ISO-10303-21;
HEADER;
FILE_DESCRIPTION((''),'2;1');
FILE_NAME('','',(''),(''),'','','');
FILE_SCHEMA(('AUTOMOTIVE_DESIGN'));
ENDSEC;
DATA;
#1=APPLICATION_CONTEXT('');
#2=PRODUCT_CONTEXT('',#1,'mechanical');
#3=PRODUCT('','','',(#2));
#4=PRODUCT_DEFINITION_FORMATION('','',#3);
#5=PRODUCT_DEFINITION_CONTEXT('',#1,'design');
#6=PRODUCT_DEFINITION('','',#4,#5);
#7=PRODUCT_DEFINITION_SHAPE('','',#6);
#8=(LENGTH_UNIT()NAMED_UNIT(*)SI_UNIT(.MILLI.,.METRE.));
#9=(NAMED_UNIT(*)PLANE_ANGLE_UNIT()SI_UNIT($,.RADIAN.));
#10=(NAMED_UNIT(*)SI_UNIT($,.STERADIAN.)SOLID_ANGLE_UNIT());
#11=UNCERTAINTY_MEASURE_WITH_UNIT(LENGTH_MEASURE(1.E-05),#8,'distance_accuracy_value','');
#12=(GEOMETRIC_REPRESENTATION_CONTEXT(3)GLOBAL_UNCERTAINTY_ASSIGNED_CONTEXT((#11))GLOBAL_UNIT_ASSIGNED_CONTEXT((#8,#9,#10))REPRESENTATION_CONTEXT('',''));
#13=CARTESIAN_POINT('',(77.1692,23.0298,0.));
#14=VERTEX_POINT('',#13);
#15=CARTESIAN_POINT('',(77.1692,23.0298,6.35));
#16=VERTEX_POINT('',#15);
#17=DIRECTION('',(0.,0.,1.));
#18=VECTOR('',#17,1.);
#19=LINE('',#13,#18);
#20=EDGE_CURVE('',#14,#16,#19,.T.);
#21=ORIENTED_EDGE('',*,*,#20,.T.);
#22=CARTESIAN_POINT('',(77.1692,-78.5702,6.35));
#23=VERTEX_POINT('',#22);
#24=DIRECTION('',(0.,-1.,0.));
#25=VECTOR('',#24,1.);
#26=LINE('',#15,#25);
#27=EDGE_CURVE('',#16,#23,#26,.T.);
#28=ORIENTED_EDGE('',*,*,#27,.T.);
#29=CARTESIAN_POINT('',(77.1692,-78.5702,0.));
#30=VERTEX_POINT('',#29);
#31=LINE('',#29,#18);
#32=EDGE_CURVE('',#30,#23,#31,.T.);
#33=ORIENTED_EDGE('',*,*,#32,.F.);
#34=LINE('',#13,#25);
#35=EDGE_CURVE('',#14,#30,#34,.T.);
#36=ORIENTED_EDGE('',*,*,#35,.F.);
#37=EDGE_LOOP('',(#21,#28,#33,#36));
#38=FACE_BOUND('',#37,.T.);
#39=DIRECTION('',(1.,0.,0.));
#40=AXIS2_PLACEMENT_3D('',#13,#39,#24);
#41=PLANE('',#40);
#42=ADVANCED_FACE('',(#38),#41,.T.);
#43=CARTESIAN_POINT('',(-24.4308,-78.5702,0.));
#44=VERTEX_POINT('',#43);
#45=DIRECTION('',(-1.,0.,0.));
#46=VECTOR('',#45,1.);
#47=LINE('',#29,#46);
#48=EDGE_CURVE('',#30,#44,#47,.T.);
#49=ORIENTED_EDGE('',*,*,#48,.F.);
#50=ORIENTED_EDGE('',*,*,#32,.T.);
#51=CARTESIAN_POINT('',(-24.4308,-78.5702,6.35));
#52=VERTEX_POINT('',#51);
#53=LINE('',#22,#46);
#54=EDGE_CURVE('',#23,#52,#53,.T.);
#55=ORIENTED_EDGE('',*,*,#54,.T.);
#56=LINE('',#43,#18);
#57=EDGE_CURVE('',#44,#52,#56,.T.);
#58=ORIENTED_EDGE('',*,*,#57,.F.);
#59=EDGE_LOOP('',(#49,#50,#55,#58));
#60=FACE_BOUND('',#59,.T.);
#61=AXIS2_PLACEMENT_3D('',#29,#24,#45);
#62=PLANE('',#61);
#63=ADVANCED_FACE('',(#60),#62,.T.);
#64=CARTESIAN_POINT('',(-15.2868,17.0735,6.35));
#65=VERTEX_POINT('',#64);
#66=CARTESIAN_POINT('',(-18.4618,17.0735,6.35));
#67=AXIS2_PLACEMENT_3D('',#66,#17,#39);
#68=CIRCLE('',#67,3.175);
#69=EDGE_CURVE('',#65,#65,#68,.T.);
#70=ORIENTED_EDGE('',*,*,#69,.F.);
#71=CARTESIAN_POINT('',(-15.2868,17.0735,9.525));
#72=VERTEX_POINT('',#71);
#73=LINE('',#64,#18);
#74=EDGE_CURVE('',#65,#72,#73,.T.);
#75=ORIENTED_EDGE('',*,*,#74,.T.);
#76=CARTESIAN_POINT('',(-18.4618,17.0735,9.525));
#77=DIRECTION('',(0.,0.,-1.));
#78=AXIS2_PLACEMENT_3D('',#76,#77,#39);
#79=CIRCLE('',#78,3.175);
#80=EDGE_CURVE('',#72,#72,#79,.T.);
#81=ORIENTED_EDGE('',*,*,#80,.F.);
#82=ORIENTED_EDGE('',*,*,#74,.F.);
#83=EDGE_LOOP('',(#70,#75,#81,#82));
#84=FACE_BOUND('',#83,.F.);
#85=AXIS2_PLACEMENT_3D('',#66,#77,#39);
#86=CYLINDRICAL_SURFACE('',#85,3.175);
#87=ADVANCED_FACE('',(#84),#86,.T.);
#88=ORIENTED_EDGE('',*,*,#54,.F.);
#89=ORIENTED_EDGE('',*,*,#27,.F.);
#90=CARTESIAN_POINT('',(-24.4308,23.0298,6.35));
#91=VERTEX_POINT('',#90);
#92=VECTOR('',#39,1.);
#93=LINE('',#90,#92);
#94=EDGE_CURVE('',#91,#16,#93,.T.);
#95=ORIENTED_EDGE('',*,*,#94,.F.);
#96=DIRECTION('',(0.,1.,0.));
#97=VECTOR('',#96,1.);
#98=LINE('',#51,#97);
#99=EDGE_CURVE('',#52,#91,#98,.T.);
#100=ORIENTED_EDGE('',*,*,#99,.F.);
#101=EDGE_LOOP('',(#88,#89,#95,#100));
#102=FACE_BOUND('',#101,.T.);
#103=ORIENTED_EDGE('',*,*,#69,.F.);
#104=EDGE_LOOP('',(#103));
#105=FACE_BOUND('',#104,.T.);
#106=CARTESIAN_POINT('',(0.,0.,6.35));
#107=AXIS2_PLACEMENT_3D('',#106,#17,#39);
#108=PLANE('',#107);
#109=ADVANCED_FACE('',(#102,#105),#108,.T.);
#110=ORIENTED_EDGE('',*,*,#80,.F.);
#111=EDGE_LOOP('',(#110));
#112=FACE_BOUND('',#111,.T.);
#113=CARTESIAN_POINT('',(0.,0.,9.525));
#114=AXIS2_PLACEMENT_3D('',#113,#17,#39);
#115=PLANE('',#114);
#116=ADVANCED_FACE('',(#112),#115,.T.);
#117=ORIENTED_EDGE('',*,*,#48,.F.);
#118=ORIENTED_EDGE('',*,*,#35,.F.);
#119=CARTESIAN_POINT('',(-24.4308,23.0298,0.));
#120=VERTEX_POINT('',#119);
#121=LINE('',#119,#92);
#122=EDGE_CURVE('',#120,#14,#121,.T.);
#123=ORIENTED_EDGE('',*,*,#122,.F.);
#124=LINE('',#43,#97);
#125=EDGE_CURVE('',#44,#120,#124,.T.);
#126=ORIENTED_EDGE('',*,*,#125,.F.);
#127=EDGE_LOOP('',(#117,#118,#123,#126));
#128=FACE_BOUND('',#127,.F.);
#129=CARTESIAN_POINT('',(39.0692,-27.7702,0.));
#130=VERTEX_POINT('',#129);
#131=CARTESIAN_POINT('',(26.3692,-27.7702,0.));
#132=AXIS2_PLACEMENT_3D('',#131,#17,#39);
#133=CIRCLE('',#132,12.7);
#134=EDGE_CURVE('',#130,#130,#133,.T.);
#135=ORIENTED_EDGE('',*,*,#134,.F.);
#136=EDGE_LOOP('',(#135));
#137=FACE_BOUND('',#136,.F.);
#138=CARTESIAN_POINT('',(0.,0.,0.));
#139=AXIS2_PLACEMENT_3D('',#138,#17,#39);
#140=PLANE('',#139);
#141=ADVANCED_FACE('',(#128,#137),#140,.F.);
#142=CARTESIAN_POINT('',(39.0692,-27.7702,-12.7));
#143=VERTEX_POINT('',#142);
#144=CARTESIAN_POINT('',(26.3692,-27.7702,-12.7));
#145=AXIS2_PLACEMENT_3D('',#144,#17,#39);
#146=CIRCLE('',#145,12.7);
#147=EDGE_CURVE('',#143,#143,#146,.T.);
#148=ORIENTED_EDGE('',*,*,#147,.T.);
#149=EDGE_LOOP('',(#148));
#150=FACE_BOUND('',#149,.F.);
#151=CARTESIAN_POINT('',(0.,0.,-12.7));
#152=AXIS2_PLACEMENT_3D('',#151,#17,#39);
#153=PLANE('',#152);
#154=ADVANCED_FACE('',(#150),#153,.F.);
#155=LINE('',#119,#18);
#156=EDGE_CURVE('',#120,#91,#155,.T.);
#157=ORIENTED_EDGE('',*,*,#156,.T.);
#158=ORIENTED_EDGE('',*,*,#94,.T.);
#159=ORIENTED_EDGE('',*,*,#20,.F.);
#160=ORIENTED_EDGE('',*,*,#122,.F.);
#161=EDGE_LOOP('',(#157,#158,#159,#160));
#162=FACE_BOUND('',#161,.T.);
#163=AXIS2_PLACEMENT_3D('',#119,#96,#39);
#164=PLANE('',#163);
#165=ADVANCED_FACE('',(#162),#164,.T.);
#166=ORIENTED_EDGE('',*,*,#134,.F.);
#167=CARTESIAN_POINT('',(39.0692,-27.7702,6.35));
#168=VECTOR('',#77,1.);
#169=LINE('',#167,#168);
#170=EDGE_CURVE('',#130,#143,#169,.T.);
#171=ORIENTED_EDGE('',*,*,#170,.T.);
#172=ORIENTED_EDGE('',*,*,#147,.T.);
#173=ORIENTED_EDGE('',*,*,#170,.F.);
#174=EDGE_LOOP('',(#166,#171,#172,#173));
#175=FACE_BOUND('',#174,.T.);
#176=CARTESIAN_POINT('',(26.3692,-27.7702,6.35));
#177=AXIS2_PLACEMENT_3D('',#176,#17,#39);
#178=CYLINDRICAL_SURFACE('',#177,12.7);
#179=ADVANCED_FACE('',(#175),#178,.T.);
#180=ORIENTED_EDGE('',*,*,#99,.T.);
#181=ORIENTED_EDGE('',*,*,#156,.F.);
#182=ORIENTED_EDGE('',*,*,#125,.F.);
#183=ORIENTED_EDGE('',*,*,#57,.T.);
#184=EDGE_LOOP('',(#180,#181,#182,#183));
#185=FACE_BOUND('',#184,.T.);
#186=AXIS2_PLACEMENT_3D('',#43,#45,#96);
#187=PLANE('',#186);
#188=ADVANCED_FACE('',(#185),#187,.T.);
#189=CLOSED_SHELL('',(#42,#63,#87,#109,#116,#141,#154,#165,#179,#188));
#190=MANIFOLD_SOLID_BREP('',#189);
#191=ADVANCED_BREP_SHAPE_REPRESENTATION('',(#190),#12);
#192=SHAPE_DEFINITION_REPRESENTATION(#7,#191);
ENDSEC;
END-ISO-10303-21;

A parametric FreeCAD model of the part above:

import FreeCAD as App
import Part
import Sketcher
Q = App.Units.Quantity

doc = App.newDocument("Part")
body = doc.addObject("PartDesign::Body", "Body")

# Sketch on XY plane
sketch1 = doc.addObject("Sketcher::SketchObject", "Sketch")
body.addObject(sketch1)
sketch1.AttachmentSupport = (doc.XY_Plane, [""])
sketch1.MapMode = "FlatFace"
sketch1.addGeometry(Part.LineSegment(App.Vector(77, 23, 0), App.Vector(-24, 23, 0)), False)
sketch1.addGeometry(Part.LineSegment(App.Vector(-24, 23, 0), App.Vector(-24, -79, 0)), False)
sketch1.addGeometry(Part.LineSegment(App.Vector(-24, -79, 0), App.Vector(77, -79, 0)), False)
sketch1.addGeometry(Part.LineSegment(App.Vector(77, -79, 0), App.Vector(77, 23, 0)), False)
sketch1.addConstraint(Sketcher.Constraint("Coincident", 0, 2, 1, 1))
sketch1.addConstraint(Sketcher.Constraint("Coincident", 1, 2, 2, 1))
sketch1.addConstraint(Sketcher.Constraint("Coincident", 2, 2, 3, 1))
sketch1.addConstraint(Sketcher.Constraint("Coincident", 3, 2, 0, 1))
sketch1.addConstraint(Sketcher.Constraint("Horizontal", 0))
sketch1.addConstraint(Sketcher.Constraint("Vertical", 1))
sketch1.addConstraint(Sketcher.Constraint("Horizontal", 2))
sketch1.addConstraint(Sketcher.Constraint("Vertical", 3))
sketch1.addConstraint(Sketcher.Constraint("Equal", 2, 1))
sketch1.addConstraint(Sketcher.Constraint("DistanceX", 0, 2, 0, 1, Q("4 in")))
sketch1.addConstraint(Sketcher.Constraint("DistanceX", 0, 2, -1, 1, Q("24.4308 mm")))
sketch1.addConstraint(Sketcher.Constraint("DistanceY", -1, 1, 0, 2, Q("23.0298 mm")))
pad1 = doc.addObject("PartDesign::Pad", "Pad")
body.addObject(pad1)
pad1.Profile = sketch1
pad1.Length = Q("0.25 in")

# Sketch on XY plane
sketch2 = doc.addObject("Sketcher::SketchObject", "Sketch001")
body.addObject(sketch2)
sketch2.AttachmentSupport = (doc.XY_Plane, [""])
sketch2.MapMode = "FlatFace"
sketch2.AttachmentOffset = App.Placement(App.Vector(0, 0, 0.25 * 25.4), App.Rotation())
sketch2.addGeometry(Part.Circle(App.Vector(26, -28, 0), App.Vector(0, 0, 1), 13), False)
sketch2.addConstraint(Sketcher.Constraint("Diameter", 0, Q("1 in")))
sketch2.addConstraint(Sketcher.Constraint("DistanceX", -1, 1, 0, 3, Q("26.3692 mm")))
sketch2.addConstraint(Sketcher.Constraint("DistanceY", 0, 3, -1, 1, Q("27.7702 mm")))
pocket1 = doc.addObject("PartDesign::Pocket", "Pocket")
body.addObject(pocket1)
pocket1.Profile = sketch2
pocket1.Length = Q("0.25 in")

# Sketch on XY plane
sketch3 = doc.addObject("Sketcher::SketchObject", "Sketch002")
body.addObject(sketch3)
sketch3.AttachmentSupport = (doc.XY_Plane, [""])
sketch3.MapMode = "FlatFace"
sketch3.AttachmentOffset = App.Placement(App.Vector(0, 0, 0.25 * 25.4), App.Rotation())
sketch3.addGeometry(Part.Circle(App.Vector(-13.4, 12, 0), App.Vector(0, 0, 1), 3.2), False)
sketch3.addConstraint(Sketcher.Constraint("Diameter", 0, Q("0.25 in")))
sketch3.addConstraint(Sketcher.Constraint("DistanceX", 0, 3, -1, 1, Q("13.3818 mm")))
sketch3.addConstraint(Sketcher.Constraint("DistanceY", -1, 1, 0, 3, Q("11.9935 mm")))
pad2 = doc.addObject("PartDesign::Pad", "Pad001")
body.addObject(pad2)
pad2.Profile = sketch3
pad2.Length = Q("0.25 in")

# Sketch on XY plane
sketch4 = doc.addObject("Sketcher::SketchObject", "Sketch003")
body.addObject(sketch4)
sketch4.AttachmentSupport = (doc.XY_Plane, [""])
sketch4.MapMode = "FlatFace"
sketch4.AttachmentOffset = App.Placement(App.Vector(0, 0, 0.25 * 25.4), App.Rotation())
sketch4.addGeometry(Part.Circle(App.Vector(26, -28, 0), App.Vector(0, 0, 1), 13), False)
sketch4.addConstraint(Sketcher.Constraint("Diameter", 0, Q("1 in")))
sketch4.addConstraint(Sketcher.Constraint("DistanceX", -1, 1, 0, 3, Q("26.3692 mm")))
sketch4.addConstraint(Sketcher.Constraint("DistanceY", 0, 3, -1, 1, Q("27.7702 mm")))
pad3 = doc.addObject("PartDesign::Pad", "Pad002")
body.addObject(pad3)
pad3.Profile = sketch4
pad3.Length = Q("0.75 in")
pad3.Reversed = True

# Sketch on XY plane
sketch5 = doc.addObject("Sketcher::SketchObject", "Sketch004")
body.addObject(sketch5)
sketch5.AttachmentSupport = (doc.XY_Plane, [""])
sketch5.MapMode = "FlatFace"
sketch5.AttachmentOffset = App.Placement(App.Vector(0, 0, 0.25 * 25.4), App.Rotation())
sketch5.addGeometry(Part.Circle(App.Vector(-18.5, 17.1, 0), App.Vector(0, 0, 1), 3.2), False)
sketch5.addConstraint(Sketcher.Constraint("Diameter", 0, Q("0.25 in")))
sketch5.addConstraint(Sketcher.Constraint("DistanceX", 0, 3, -1, 1, Q("18.4618 mm")))
sketch5.addConstraint(Sketcher.Constraint("DistanceY", -1, 1, 0, 3, Q("17.0735 mm")))
pad4 = doc.addObject("PartDesign::Pad", "Pad003")
body.addObject(pad4)
pad4.Profile = sketch5
pad4.Length = Q("0.125 in")

# Sketch on XY plane
sketch6 = doc.addObject("Sketcher::SketchObject", "Sketch005")
body.addObject(sketch6)
sketch6.AttachmentSupport = (doc.XY_Plane, [""])
sketch6.MapMode = "FlatFace"
sketch6.AttachmentOffset = App.Placement(App.Vector(0, 0, 0.5 * 25.4), App.Rotation())
sketch6.addGeometry(Part.Circle(App.Vector(-13.4, 12, 0), App.Vector(0, 0, 1), 3.2), False)
sketch6.addConstraint(Sketcher.Constraint("Diameter", 0, Q("0.25 in")))
sketch6.addConstraint(Sketcher.Constraint("DistanceX", 0, 3, -1, 1, Q("13.3818 mm")))
sketch6.addConstraint(Sketcher.Constraint("DistanceY", -1, 1, 0, 3, Q("11.9935 mm")))
pocket2 = doc.addObject("PartDesign::Pocket", "Pocket001")
body.addObject(pocket2)
pocket2.Profile = sketch6
pocket2.Length = Q("0.25 in")

doc.recompute()
